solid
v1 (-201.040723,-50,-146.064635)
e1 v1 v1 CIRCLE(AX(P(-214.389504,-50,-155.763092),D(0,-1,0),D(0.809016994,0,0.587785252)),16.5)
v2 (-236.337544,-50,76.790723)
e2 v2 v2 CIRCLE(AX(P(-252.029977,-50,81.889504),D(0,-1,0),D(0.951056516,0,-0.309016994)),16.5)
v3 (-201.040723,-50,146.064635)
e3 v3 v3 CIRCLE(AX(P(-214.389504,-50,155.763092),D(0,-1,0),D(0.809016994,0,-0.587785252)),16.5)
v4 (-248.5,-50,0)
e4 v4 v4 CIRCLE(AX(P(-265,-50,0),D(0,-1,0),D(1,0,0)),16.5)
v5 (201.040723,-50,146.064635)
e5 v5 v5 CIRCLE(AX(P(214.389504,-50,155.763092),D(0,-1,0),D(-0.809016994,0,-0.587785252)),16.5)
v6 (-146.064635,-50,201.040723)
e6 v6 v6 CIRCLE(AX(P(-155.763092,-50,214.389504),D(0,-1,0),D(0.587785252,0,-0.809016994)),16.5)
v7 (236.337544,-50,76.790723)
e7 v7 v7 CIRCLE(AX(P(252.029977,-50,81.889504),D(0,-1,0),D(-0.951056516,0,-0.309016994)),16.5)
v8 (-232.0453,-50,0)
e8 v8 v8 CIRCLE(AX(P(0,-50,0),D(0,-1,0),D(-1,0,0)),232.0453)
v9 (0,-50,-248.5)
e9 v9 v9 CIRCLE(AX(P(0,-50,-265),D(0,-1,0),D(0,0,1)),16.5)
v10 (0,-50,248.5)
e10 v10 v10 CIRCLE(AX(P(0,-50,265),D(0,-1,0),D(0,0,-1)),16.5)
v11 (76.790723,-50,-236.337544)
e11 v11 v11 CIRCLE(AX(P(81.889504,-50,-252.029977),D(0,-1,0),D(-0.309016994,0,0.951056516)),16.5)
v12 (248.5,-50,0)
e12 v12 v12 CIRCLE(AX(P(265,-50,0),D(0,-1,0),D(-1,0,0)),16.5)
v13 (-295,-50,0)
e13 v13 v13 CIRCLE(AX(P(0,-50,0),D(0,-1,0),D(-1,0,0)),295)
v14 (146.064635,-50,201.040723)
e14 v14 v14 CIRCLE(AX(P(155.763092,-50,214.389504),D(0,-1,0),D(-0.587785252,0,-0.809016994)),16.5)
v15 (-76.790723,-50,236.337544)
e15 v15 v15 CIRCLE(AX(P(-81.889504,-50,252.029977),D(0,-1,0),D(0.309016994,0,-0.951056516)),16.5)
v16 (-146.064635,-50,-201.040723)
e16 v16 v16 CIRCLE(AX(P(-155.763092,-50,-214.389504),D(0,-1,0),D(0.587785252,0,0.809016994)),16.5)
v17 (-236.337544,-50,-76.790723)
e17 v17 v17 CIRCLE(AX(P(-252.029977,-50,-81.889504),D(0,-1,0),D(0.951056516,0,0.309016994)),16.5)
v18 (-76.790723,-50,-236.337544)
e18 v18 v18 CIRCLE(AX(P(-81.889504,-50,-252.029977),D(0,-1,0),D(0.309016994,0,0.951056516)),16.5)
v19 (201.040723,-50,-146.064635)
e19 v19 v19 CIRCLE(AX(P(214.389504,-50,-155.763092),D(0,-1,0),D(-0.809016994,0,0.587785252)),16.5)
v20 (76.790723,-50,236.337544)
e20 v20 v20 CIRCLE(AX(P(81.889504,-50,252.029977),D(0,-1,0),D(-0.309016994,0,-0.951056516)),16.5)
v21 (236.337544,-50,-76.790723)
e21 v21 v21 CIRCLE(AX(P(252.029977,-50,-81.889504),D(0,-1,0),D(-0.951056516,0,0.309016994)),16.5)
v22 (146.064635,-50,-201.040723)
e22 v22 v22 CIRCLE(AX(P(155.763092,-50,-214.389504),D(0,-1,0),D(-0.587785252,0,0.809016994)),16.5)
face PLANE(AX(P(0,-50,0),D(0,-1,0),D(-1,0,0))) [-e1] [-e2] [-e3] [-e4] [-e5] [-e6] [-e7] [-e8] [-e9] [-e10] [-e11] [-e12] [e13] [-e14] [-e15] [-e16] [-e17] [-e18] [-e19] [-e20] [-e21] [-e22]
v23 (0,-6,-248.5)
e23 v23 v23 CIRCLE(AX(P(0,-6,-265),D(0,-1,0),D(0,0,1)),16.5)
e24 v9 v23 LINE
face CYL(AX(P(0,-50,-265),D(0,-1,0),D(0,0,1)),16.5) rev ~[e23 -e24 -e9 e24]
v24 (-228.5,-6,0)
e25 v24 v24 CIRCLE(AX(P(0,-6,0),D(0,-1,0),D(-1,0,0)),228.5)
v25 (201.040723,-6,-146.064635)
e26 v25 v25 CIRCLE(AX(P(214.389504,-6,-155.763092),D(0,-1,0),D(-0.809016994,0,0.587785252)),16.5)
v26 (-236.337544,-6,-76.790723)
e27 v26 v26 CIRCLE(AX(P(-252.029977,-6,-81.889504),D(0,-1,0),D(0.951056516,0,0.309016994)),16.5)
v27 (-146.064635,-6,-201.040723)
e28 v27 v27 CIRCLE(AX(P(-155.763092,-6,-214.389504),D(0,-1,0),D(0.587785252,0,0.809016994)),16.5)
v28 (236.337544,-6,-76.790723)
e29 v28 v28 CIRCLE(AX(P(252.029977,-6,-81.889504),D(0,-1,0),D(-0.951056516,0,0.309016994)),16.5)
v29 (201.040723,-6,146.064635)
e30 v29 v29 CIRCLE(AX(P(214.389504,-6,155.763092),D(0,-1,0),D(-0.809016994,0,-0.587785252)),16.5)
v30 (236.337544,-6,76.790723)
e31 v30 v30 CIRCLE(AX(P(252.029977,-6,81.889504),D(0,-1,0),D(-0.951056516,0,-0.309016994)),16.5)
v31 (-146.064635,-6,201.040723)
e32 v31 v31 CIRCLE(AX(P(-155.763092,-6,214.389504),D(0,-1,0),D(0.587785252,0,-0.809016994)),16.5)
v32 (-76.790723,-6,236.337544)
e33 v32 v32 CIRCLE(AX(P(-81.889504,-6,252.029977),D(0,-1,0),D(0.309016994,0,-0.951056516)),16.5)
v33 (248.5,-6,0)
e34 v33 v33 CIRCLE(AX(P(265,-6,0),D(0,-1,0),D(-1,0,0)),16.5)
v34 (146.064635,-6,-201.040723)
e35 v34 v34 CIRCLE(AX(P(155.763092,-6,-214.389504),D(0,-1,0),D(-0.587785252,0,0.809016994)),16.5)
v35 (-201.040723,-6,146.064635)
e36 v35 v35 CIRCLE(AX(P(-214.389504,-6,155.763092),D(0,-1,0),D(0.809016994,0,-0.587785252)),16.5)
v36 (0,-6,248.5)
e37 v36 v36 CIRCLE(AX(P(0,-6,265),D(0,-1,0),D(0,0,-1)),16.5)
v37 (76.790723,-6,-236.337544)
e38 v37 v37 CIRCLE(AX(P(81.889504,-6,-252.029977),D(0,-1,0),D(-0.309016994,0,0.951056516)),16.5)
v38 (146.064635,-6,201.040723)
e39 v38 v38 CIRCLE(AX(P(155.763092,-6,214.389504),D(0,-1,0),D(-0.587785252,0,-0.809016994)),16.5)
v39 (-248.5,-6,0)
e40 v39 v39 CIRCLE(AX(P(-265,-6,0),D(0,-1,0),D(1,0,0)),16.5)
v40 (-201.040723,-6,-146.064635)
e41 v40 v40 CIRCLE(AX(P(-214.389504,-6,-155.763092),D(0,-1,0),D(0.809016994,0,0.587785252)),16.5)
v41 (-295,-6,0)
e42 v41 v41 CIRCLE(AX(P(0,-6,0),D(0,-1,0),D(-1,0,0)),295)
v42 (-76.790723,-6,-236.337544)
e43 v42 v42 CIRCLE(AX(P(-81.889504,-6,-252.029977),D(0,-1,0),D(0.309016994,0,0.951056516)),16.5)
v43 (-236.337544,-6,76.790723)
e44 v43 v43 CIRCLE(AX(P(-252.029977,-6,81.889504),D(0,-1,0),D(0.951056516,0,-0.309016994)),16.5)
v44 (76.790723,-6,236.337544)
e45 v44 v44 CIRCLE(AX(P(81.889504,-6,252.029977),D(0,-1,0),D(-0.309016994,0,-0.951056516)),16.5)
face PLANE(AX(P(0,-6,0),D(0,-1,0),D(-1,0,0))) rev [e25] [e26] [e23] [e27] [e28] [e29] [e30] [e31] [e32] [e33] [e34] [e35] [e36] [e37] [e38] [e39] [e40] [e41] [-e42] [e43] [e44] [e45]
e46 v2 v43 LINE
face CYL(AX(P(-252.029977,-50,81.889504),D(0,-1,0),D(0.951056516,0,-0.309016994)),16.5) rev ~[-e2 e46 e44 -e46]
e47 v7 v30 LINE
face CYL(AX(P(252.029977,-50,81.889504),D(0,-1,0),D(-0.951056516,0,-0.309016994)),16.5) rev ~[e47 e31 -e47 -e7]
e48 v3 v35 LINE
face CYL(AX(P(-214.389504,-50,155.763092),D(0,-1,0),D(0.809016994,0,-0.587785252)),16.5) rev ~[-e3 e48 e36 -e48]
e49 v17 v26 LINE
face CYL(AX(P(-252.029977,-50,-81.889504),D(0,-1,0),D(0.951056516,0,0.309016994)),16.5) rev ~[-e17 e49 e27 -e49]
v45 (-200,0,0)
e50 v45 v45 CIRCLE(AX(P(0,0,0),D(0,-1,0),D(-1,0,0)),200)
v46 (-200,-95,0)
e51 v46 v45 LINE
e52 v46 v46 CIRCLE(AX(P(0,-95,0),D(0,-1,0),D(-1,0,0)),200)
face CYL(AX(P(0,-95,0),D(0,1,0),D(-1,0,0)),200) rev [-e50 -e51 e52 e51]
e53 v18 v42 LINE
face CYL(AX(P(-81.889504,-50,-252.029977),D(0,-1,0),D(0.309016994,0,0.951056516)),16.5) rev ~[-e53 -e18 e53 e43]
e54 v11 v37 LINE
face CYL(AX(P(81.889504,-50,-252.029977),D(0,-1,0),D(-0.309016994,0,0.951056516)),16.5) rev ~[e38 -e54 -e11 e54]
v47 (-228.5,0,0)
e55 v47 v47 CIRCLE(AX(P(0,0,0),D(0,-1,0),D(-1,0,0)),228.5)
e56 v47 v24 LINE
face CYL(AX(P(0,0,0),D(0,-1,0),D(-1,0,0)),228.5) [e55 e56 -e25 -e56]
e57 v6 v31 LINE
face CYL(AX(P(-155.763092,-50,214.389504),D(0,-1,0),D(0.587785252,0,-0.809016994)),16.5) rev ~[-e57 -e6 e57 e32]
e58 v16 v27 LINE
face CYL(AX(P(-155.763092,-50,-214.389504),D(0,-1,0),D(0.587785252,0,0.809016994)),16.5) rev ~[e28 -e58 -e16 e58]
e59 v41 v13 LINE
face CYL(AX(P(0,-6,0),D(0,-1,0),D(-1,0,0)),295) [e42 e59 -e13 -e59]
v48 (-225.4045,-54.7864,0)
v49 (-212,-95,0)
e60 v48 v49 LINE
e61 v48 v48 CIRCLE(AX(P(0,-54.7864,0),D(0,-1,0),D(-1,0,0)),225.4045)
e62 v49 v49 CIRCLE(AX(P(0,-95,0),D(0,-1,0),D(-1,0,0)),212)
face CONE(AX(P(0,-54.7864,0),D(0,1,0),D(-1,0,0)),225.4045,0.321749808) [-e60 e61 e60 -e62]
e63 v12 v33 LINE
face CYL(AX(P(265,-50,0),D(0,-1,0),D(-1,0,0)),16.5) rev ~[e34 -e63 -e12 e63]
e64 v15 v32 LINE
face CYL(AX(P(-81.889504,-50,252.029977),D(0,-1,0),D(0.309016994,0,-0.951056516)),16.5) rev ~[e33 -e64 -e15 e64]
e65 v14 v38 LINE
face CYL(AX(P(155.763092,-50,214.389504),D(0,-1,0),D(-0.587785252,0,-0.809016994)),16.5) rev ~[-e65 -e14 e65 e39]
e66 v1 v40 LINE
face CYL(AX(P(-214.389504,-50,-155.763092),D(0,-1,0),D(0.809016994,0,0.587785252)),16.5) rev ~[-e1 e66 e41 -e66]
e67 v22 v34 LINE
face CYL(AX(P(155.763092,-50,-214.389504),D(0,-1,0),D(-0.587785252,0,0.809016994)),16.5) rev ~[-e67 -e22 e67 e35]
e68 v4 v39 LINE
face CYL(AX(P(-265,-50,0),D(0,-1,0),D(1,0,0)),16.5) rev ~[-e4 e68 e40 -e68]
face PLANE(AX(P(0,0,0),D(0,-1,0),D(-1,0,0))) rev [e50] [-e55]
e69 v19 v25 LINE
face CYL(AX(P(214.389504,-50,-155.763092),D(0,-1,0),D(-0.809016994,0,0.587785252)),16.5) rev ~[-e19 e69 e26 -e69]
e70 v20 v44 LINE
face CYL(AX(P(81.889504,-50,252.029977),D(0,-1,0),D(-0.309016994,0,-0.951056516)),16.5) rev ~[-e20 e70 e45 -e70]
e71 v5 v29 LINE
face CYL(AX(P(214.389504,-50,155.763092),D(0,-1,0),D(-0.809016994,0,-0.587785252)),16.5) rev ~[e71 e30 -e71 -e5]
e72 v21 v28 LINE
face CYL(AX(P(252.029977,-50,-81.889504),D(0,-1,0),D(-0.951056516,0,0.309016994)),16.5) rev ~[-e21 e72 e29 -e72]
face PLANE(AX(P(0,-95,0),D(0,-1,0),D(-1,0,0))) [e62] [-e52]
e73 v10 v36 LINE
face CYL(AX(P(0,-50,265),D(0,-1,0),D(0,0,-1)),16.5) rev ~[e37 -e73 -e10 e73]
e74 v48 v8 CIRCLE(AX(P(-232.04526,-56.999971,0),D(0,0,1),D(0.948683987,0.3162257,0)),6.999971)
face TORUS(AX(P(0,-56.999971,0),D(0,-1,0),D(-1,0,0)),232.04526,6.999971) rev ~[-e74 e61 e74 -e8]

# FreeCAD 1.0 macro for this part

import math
import FreeCAD as App
import Part
import Sketcher
from FreeCAD import Vector
Q = App.Units.Quantity

doc = App.newDocument("Part")
body = doc.addObject("PartDesign::Body", "Body")

# Sketch on XY plane
sketch1 = doc.addObject("Sketcher::SketchObject", "Sketch")
body.addObject(sketch1)
sketch1.AttachmentSupport = (doc.XY_Plane, [""])
sketch1.MapMode = "FlatFace"
sketch1.addGeometry([
    Part.LineSegment(Vector(-200, -95, 0), Vector(-200, 0, 0)),  # 0
    Part.LineSegment(Vector(-200, 0, 0), Vector(-228, 0, 0)),  # 1
    Part.LineSegment(Vector(-228, 0, 0), Vector(-228, -6, 0)),  # 2
    Part.LineSegment(Vector(-228, -6, 0), Vector(-295, -6, 0)),  # 3
    Part.LineSegment(Vector(-295, -6, 0), Vector(-295, -50, 0)),  # 4
    Part.LineSegment(Vector(-295, -50, 0), Vector(-232, -50, 0)),  # 5
    Part.ArcOfCircle(Part.Circle(Vector(-232, -57, 0), Vector(0, 0, 1), 7), math.radians(18), math.radians(90)),  # 6
    Part.LineSegment(Vector(-225, -55, 0), Vector(-212, -95, 0)),  # 7
    Part.LineSegment(Vector(-212, -95, 0), Vector(-200, -95, 0)),  # 8
], False)
sketch1.addConstraint([
    Sketcher.Constraint("Coincident", 0, 2, 1, 1),
    Sketcher.Constraint("Coincident", 1, 2, 2, 1),
    Sketcher.Constraint("Coincident", 2, 2, 3, 1),
    Sketcher.Constraint("Coincident", 3, 2, 4, 1),
    Sketcher.Constraint("Coincident", 4, 2, 5, 1),
    Sketcher.Constraint("Tangent", 5, 2, 6, 2),
    Sketcher.Constraint("Tangent", 6, 1, 7, 1),
    Sketcher.Constraint("Coincident", 7, 2, 8, 1),
    Sketcher.Constraint("Coincident", 8, 2, 0, 1),
    Sketcher.Constraint("Vertical", 0),
    Sketcher.Constraint("Horizontal", 1),
    Sketcher.Constraint("Vertical", 2),
    Sketcher.Constraint("Horizontal", 3),
    Sketcher.Constraint("Vertical", 4),
    Sketcher.Constraint("Horizontal", 5),
    Sketcher.Constraint("Horizontal", 8),
    Sketcher.Constraint("PointOnObject", 0, 2, -1),
    Sketcher.Constraint("Radius", 6, Q("7 mm")),
    Sketcher.Constraint("DistanceY", 0, 1, 0, 2, Q("95 mm")),
    Sketcher.Constraint("DistanceY", 2, 2, 2, 1, Q("6 mm")),
    Sketcher.Constraint("DistanceY", 4, 2, -1, 1, Q("50 mm")),
    Sketcher.Constraint("DistanceX", 3, 2, 0, 2, Q("95 mm")),
    Sketcher.Constraint("DistanceX", 8, 1, 8, 2, Q("12 mm")),
    Sketcher.Constraint("DistanceX", 1, 2, 1, 1, Q("28.5 mm")),
    Sketcher.Constraint("DistanceX", 0, 2, -1, 1, Q("200 mm")),
    Sketcher.Constraint("DistanceX", 5, 1, 5, 2, Q("62.9547 mm")),
])
revolution = doc.addObject("PartDesign::Revolution", "Revolution")
body.addObject(revolution)
revolution.Profile = sketch1
revolution.ReferenceAxis = (sketch1, ["V_Axis"])
revolution.Angle = 360

# Sketch on XZ plane
sketch2 = doc.addObject("Sketcher::SketchObject", "Sketch001")
body.addObject(sketch2)
sketch2.AttachmentSupport = (doc.XZ_Plane, [""])
sketch2.MapMode = "FlatFace"
sketch2.AttachmentOffset = App.Placement(Vector(0, 0, 50), App.Rotation())
sketch2.addGeometry(Part.Circle(Vector(-265, 0, 0), Vector(0, 0, 1), 16), False)
sketch2.addConstraint([
    Sketcher.Constraint("PointOnObject", 0, 3, -1),
    Sketcher.Constraint("Diameter", 0, Q("33 mm")),
    Sketcher.Constraint("DistanceX", 0, 3, -1, 1, Q("265 mm")),
])
pocket1 = doc.addObject("PartDesign::Pocket", "Pocket")
body.addObject(pocket1)
pocket1.Profile = sketch2
pocket1.Type = "ThroughAll"
doc.recompute()

polarpattern = doc.addObject("PartDesign::PolarPattern", "PolarPattern")
body.addObject(polarpattern)
polarpattern.Originals = [pocket1]
polarpattern.Axis = (doc.Y_Axis, [""])
polarpattern.Angle = 360
polarpattern.Occurrences = 20
body.Tip = polarpattern

doc.recompute()
